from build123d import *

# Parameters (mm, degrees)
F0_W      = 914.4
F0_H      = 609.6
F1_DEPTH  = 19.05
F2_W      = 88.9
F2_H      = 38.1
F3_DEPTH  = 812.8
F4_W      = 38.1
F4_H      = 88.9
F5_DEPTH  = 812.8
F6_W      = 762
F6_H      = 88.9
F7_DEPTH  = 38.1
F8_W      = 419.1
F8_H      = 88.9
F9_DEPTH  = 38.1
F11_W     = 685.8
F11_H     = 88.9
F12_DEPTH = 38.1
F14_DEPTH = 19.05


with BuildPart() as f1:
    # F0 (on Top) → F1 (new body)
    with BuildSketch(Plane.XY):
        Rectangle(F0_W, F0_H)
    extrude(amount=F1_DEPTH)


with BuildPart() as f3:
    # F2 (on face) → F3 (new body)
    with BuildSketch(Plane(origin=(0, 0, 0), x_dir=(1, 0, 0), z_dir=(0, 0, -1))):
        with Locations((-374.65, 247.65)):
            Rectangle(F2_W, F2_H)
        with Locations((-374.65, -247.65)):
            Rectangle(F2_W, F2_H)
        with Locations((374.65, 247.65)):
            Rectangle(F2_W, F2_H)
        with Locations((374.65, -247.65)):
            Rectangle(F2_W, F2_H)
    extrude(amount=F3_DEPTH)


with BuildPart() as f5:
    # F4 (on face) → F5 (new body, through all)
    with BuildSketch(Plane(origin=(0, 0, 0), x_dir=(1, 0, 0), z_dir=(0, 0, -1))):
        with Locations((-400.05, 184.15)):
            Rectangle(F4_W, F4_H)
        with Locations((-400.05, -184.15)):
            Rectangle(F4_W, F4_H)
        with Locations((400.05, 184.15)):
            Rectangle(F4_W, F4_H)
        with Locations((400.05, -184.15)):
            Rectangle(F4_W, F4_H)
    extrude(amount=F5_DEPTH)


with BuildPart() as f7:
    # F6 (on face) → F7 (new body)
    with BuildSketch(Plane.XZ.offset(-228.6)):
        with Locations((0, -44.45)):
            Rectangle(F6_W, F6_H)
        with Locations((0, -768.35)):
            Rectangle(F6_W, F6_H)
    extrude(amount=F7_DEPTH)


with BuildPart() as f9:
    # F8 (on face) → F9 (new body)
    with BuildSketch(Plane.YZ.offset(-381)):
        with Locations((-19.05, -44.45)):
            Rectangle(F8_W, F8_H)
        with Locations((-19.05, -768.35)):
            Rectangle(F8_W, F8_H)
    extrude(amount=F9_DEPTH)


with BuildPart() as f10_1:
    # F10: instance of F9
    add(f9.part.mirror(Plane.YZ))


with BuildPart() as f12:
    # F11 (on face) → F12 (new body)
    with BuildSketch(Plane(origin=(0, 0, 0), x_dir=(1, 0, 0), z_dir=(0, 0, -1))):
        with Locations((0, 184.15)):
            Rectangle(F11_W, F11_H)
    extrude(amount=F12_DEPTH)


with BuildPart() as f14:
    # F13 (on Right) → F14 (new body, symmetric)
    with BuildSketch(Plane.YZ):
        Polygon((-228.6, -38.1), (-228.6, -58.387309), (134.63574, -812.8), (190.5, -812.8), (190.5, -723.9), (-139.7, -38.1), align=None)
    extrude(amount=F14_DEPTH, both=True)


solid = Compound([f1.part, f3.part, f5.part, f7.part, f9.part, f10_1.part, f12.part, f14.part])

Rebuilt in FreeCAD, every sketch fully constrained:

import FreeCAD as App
import Part
import Sketcher
from FreeCAD import Vector
Q = App.Units.Quantity


def add_polygon(sketch, points):
    """Adds a closed chain of lines whose ends are joined by coincident constraints."""
    first, n = sketch.GeometryCount, len(points)
    for a, b in zip(points, points[1:] + points[:1]):
        sketch.addGeometry(Part.LineSegment(App.Vector(*a, 0), App.Vector(*b, 0)), False)
    for i in range(n):
        sketch.addConstraint(Sketcher.Constraint("Coincident", first + i, 2, first + (i + 1) % n, 1))

doc = App.newDocument("Part")
params = doc.addObject("Spreadsheet::Sheet", "Params")
for row, (alias, value) in enumerate([
    ("sketch1_width", "36 in"),
    ("sketch1_height", "24 in"),
    ("pad1_length", "0.75 in"),
    ("sketch2_width", "3.5 in"),
    ("sketch2_height", "1.5 in"),
    ("pad2_length", "32 in"),
    ("sketch3_width", "1.5 in"),
    ("sketch3_height", "3.5 in"),
    ("pad3_length", "32 in"),
    ("sketch4_width", "30 in"),
    ("sketch4_height", "3.5 in"),
    ("pad4_length", "1.5 in"),
    ("sketch5_width", "16.5 in"),
    ("sketch5_height", "3.5 in"),
    ("pad5_length", "1.5 in"),
    ("sketch6_width", "27 in"),
    ("sketch6_height", "3.5 in"),
    ("pad6_length", "1.5 in"),
    ("sketch7_width", "3.5 in"),
    ("pad7_length", "1.5 in"),
], start=1):
    params.set(f"A{row}", alias)
    params.set(f"B{row}", "=" + value)
    params.setAlias(f"B{row}", alias)

body = doc.addObject("PartDesign::Body", "Body")

sketch1 = body.newObject("Sketcher::SketchObject", "Sketch")
sketch1.AttachmentSupport = (doc.getObject("XY_Plane"), [""])
sketch1.MapMode = "FlatFace"
add_polygon(sketch1, [(-457, 305), (-457, -305), (457, -305), (457, 305)])
sketch1.addConstraint(Sketcher.Constraint("Vertical", 0))
sketch1.addConstraint(Sketcher.Constraint("Horizontal", 1))
sketch1.addConstraint(Sketcher.Constraint("Vertical", 2))
sketch1.addConstraint(Sketcher.Constraint("Horizontal", 3))
sketch1.addConstraint(Sketcher.Constraint("Symmetric", 0, 2, 2, 2, -1, 1))
sketch1.addConstraint(Sketcher.Constraint("DistanceX", 1, 1, 1, 2, Q("36 in")))
sketch1.addConstraint(Sketcher.Constraint("DistanceY", 0, 2, 0, 1, Q("24 in")))
sketch1.setExpression("Constraints[9]", "Params.sketch1_width")
sketch1.setExpression("Constraints[10]", "Params.sketch1_height")
pad1 = body.newObject("PartDesign::Pad", "Pad")
pad1.Profile = sketch1
pad1.setExpression("Length", "Params.pad1_length")
body2 = doc.addObject("PartDesign::Body", "Body001")
body2.AllowCompound = True

sketch2 = body2.newObject("Sketcher::SketchObject", "Sketch001")
sketch2.AttachmentSupport = (doc.getObject("XY_Plane001"), [""])
sketch2.MapMode = "FlatFace"
add_polygon(sketch2, [(-419, -267), (-419, -229), (-330, -229), (-330, -267)])
add_polygon(sketch2, [(-419, 229), (-419, 267), (-330, 267), (-330, 229)])
add_polygon(sketch2, [(330, -267), (330, -229), (419, -229), (419, -267)])
add_polygon(sketch2, [(330, 229), (330, 267), (419, 267), (419, 229)])
sketch2.addConstraint(Sketcher.Constraint("Vertical", 0))
sketch2.addConstraint(Sketcher.Constraint("Horizontal", 1))
sketch2.addConstraint(Sketcher.Constraint("Vertical", 2))
sketch2.addConstraint(Sketcher.Constraint("Horizontal", 3))
sketch2.addConstraint(Sketcher.Constraint("Vertical", 4))
sketch2.addConstraint(Sketcher.Constraint("Horizontal", 5))
sketch2.addConstraint(Sketcher.Constraint("Vertical", 6))
sketch2.addConstraint(Sketcher.Constraint("Horizontal", 7))
sketch2.addConstraint(Sketcher.Constraint("Vertical", 8))
sketch2.addConstraint(Sketcher.Constraint("Horizontal", 9))
sketch2.addConstraint(Sketcher.Constraint("Vertical", 10))
sketch2.addConstraint(Sketcher.Constraint("Horizontal", 11))
sketch2.addConstraint(Sketcher.Constraint("Vertical", 12))
sketch2.addConstraint(Sketcher.Constraint("Horizontal", 13))
sketch2.addConstraint(Sketcher.Constraint("Vertical", 14))
sketch2.addConstraint(Sketcher.Constraint("Horizontal", 15))
sketch2.addConstraint(Sketcher.Constraint("Symmetric", 6, 2, 8, 2, -1, 1))
sketch2.addConstraint(Sketcher.Constraint("Symmetric", 4, 2, 10, 2, -1, 1))
sketch2.addConstraint(Sketcher.Constraint("Symmetric", 2, 2, 12, 2, -1, 1))
sketch2.addConstraint(Sketcher.Constraint("Symmetric", 0, 2, 14, 2, -1, 1))
sketch2.addConstraint(Sketcher.Constraint("Symmetric", 1, 2, 8, 2, -2))
sketch2.addConstraint(Sketcher.Constraint("Symmetric", 3, 2, 10, 2, -2))
sketch2.addConstraint(Sketcher.Constraint("DistanceX", 1, 1, 1, 2, Q("3.5 in")))
sketch2.addConstraint(Sketcher.Constraint("DistanceY", 0, 1, 0, 2, Q("1.5 in")))
sketch2.addConstraint(Sketcher.Constraint("DistanceY", 0, 2, -1, 1, Q("9 in")))
sketch2.addConstraint(Sketcher.Constraint("DistanceX", 1, 2, -1, 1, Q("13 in")))
sketch2.setExpression("Constraints[38]", "Params.sketch2_width")
sketch2.setExpression("Constraints[39]", "Params.sketch2_height")
pad2 = body2.newObject("PartDesign::Pad", "Pad001")
pad2.Profile = sketch2
pad2.setExpression("Length", "Params.pad2_length")
pad2.Reversed = True
body3 = doc.addObject("PartDesign::Body", "Body002")
body3.AllowCompound = True

sketch3 = body3.newObject("Sketcher::SketchObject", "Sketch002")
sketch3.AttachmentSupport = (doc.getObject("XY_Plane002"), [""])
sketch3.MapMode = "FlatFace"
add_polygon(sketch3, [(-419, -229), (-419, -140), (-381, -140), (-381, -229)])
add_polygon(sketch3, [(-419, 140), (-419, 229), (-381, 229), (-381, 140)])
add_polygon(sketch3, [(381, -229), (381, -140), (419, -140), (419, -229)])
add_polygon(sketch3, [(381, 140), (381, 229), (419, 229), (419, 140)])
sketch3.addConstraint(Sketcher.Constraint("Vertical", 0))
sketch3.addConstraint(Sketcher.Constraint("Horizontal", 1))
sketch3.addConstraint(Sketcher.Constraint("Vertical", 2))
sketch3.addConstraint(Sketcher.Constraint("Horizontal", 3))
sketch3.addConstraint(Sketcher.Constraint("Vertical", 4))
sketch3.addConstraint(Sketcher.Constraint("Horizontal", 5))
sketch3.addConstraint(Sketcher.Constraint("Vertical", 6))
sketch3.addConstraint(Sketcher.Constraint("Horizontal", 7))
sketch3.addConstraint(Sketcher.Constraint("Vertical", 8))
sketch3.addConstraint(Sketcher.Constraint("Horizontal", 9))
sketch3.addConstraint(Sketcher.Constraint("Vertical", 10))
sketch3.addConstraint(Sketcher.Constraint("Horizontal", 11))
sketch3.addConstraint(Sketcher.Constraint("Vertical", 12))
sketch3.addConstraint(Sketcher.Constraint("Horizontal", 13))
sketch3.addConstraint(Sketcher.Constraint("Vertical", 14))
sketch3.addConstraint(Sketcher.Constraint("Horizontal", 15))
sketch3.addConstraint(Sketcher.Constraint("Symmetric", 6, 2, 8, 2, -1, 1))
sketch3.addConstraint(Sketcher.Constraint("Symmetric", 4, 2, 10, 2, -1, 1))
sketch3.addConstraint(Sketcher.Constraint("Symmetric", 2, 2, 12, 2, -1, 1))
sketch3.addConstraint(Sketcher.Constraint("Symmetric", 0, 2, 14, 2, -1, 1))
sketch3.addConstraint(Sketcher.Constraint("Symmetric", 1, 2, 8, 2, -2))
sketch3.addConstraint(Sketcher.Constraint("Symmetric", 3, 2, 10, 2, -2))
sketch3.addConstraint(Sketcher.Constraint("DistanceX", 1, 1, 1, 2, Q("1.5 in")))
sketch3.addConstraint(Sketcher.Constraint("DistanceY", 0, 1, 0, 2, Q("3.5 in")))
sketch3.addConstraint(Sketcher.Constraint("DistanceX", 1, 2, -1, 1, Q("15 in")))
sketch3.addConstraint(Sketcher.Constraint("DistanceY", 2, 2, -1, 1, Q("9 in")))
sketch3.setExpression("Constraints[38]", "Params.sketch3_width")
sketch3.setExpression("Constraints[39]", "Params.sketch3_height")
pad3 = body3.newObject("PartDesign::Pad", "Pad002")
pad3.Profile = sketch3
pad3.setExpression("Length", "Params.pad3_length")
pad3.Reversed = True
body4 = doc.addObject("PartDesign::Body", "Body003")
body4.AllowCompound = True

sketch4 = body4.newObject("Sketcher::SketchObject", "Sketch003")
sketch4.AttachmentSupport = (doc.getObject("XZ_Plane003"), [""])
sketch4.MapMode = "FlatFace"
sketch4.AttachmentOffset = App.Placement(Vector(0, 0, -9 * 25.4), App.Rotation())
add_polygon(sketch4, [(-381, 0), (-381, -89), (381, -89), (381, 0)])
add_polygon(sketch4, [(-381, -724), (-381, -813), (381, -813), (381, -724)])
sketch4.addConstraint(Sketcher.Constraint("Vertical", 0))
sketch4.addConstraint(Sketcher.Constraint("Horizontal", 1))
sketch4.addConstraint(Sketcher.Constraint("Vertical", 2))
sketch4.addConstraint(Sketcher.Constraint("Horizontal", 3))
sketch4.addConstraint(Sketcher.Constraint("Vertical", 4))
sketch4.addConstraint(Sketcher.Constraint("Horizontal", 5))
sketch4.addConstraint(Sketcher.Constraint("Vertical", 6))
sketch4.addConstraint(Sketcher.Constraint("Horizontal", 7))
sketch4.addConstraint(Sketcher.Constraint("Symmetric", 2, 2, 3, 2, -1, 1))
sketch4.addConstraint(Sketcher.Constraint("Vertical", 3, 2, 4, 2))
sketch4.addConstraint(Sketcher.Constraint("Vertical", 2, 2, 5, 2))
sketch4.addConstraint(Sketcher.Constraint("Equal", 2, 4))
sketch4.addConstraint(Sketcher.Constraint("DistanceX", 1, 1, 1, 2, Q("30 in")))
sketch4.addConstraint(Sketcher.Constraint("DistanceY", 0, 2, 0, 1, Q("3.5 in")))
sketch4.addConstraint(Sketcher.Constraint("DistanceY", 4, 2, -1, 1, Q("32 in")))
sketch4.setExpression("Constraints[20]", "Params.sketch4_width")
sketch4.setExpression("Constraints[21]", "Params.sketch4_height")
pad4 = body4.newObject("PartDesign::Pad", "Pad003")
pad4.Profile = sketch4
pad4.setExpression("Length", "Params.pad4_length")
body5 = doc.addObject("PartDesign::Body", "Body004")
body5.AllowCompound = True

sketch5 = body5.newObject("Sketcher::SketchObject", "Sketch004")
sketch5.AttachmentSupport = (doc.getObject("YZ_Plane004"), [""])
sketch5.MapMode = "FlatFace"
sketch5.AttachmentOffset = App.Placement(Vector(0, 0, -15 * 25.4), App.Rotation())
add_polygon(sketch5, [(-229, 0), (-229, -89), (190, -89), (190, 0)])
add_polygon(sketch5, [(-229, -724), (-229, -813), (190, -813), (190, -724)])
sketch5.addConstraint(Sketcher.Constraint("Vertical", 0))
sketch5.addConstraint(Sketcher.Constraint("Horizontal", 1))
sketch5.addConstraint(Sketcher.Constraint("Vertical", 2))
sketch5.addConstraint(Sketcher.Constraint("Horizontal", 3))
sketch5.addConstraint(Sketcher.Constraint("Vertical", 4))
sketch5.addConstraint(Sketcher.Constraint("Horizontal", 5))
sketch5.addConstraint(Sketcher.Constraint("Vertical", 6))
sketch5.addConstraint(Sketcher.Constraint("Horizontal", 7))
sketch5.addConstraint(Sketcher.Constraint("PointOnObject", 2, 2, -1))
sketch5.addConstraint(Sketcher.Constraint("Vertical", 3, 2, 4, 2))
sketch5.addConstraint(Sketcher.Constraint("Vertical", 2, 2, 5, 2))
sketch5.addConstraint(Sketcher.Constraint("Equal", 2, 4))
sketch5.addConstraint(Sketcher.Constraint("DistanceX", 1, 1, 1, 2, Q("16.5 in")))
sketch5.addConstraint(Sketcher.Constraint("DistanceY", 0, 2, 0, 1, Q("3.5 in")))
sketch5.addConstraint(Sketcher.Constraint("DistanceX", 0, 2, -1, 1, Q("9 in")))
sketch5.addConstraint(Sketcher.Constraint("DistanceY", 4, 2, -1, 1, Q("32 in")))
sketch5.setExpression("Constraints[20]", "Params.sketch5_width")
sketch5.setExpression("Constraints[21]", "Params.sketch5_height")
pad5 = body5.newObject("PartDesign::Pad", "Pad004")
pad5.Profile = sketch5
pad5.setExpression("Length", "Params.pad5_length")
body6 = doc.addObject("PartDesign::Body", "Body005")
body6.AllowCompound = True
doc.recompute()

mirroring = doc.addObject("Part::Mirroring", "Mirroring")
mirroring.Source = body5
mirroring.Base = Vector(0, 0, 0)
mirroring.Normal = Vector(1, 0, 0)
body6.BaseFeature = mirroring
doc.recompute()
body7 = doc.addObject("PartDesign::Body", "Body006")

sketch6 = body7.newObject("Sketcher::SketchObject", "Sketch005")
sketch6.AttachmentSupport = (doc.getObject("XY_Plane006"), [""])
sketch6.MapMode = "FlatFace"
add_polygon(sketch6, [(-343, -229), (-343, -140), (343, -140), (343, -229)])
sketch6.addConstraint(Sketcher.Constraint("Vertical", 0))
sketch6.addConstraint(Sketcher.Constraint("Horizontal", 1))
sketch6.addConstraint(Sketcher.Constraint("Vertical", 2))
sketch6.addConstraint(Sketcher.Constraint("Horizontal", 3))
sketch6.addConstraint(Sketcher.Constraint("DistanceX", 1, 1, 1, 2, Q("27 in")))
sketch6.addConstraint(Sketcher.Constraint("DistanceY", 0, 1, 0, 2, Q("3.5 in")))
sketch6.addConstraint(Sketcher.Constraint("DistanceY", 2, 2, -1, 1, Q("9 in")))
sketch6.addConstraint(Sketcher.Constraint("DistanceX", 0, 2, -1, 1, Q("13.5 in")))
sketch6.setExpression("Constraints[8]", "Params.sketch6_width")
sketch6.setExpression("Constraints[9]", "Params.sketch6_height")
pad6 = body7.newObject("PartDesign::Pad", "Pad005")
pad6.Profile = sketch6
pad6.setExpression("Length", "Params.pad6_length")
pad6.Reversed = True
body8 = doc.addObject("PartDesign::Body", "Body007")

sketch7 = body8.newObject("Sketcher::SketchObject", "Sketch006")
sketch7.AttachmentSupport = (doc.getObject("YZ_Plane007"), [""])
sketch7.MapMode = "FlatFace"
add_polygon(sketch7, [(-229, -38), (-229, -58), (135, -813), (190, -813), (190, -724), (-140, -38)])
sketch7.addConstraint(Sketcher.Constraint("Vertical", 0))
sketch7.addConstraint(Sketcher.Constraint("Horizontal", 2))
sketch7.addConstraint(Sketcher.Constraint("Vertical", 3))
sketch7.addConstraint(Sketcher.Constraint("Horizontal", 5))
sketch7.addConstraint(Sketcher.Constraint("Parallel", 1, 4))
sketch7.addConstraint(Sketcher.Constraint("Equal", 5, 3))
sketch7.addConstraint(Sketcher.Constraint("DistanceX", 5, 2, 5, 1, Q("3.5 in")))
sketch7.addConstraint(Sketcher.Constraint("DistanceX", 0, 2, -1, 1, Q("9 in")))
sketch7.addConstraint(Sketcher.Constraint("DistanceY", 1, 2, -1, 1, Q("32 in")))
sketch7.addConstraint(Sketcher.Constraint("DistanceX", 4, 2, 3, 2, Q("13 in")))
sketch7.addConstraint(Sketcher.Constraint("DistanceY", 3, 2, 4, 2, Q("27 in")))
sketch7.addConstraint(Sketcher.Constraint("DistanceX", 2, 1, 2, 2, 55.86426))
sketch7.setExpression("Constraints[12]", "Params.sketch7_width")
pad7 = body8.newObject("PartDesign::Pad", "Pad006")
pad7.Profile = sketch7
pad7.setExpression("Length", "Params.pad7_length")
pad7.Midplane = True
mirroring.Visibility = False

doc.recompute()
